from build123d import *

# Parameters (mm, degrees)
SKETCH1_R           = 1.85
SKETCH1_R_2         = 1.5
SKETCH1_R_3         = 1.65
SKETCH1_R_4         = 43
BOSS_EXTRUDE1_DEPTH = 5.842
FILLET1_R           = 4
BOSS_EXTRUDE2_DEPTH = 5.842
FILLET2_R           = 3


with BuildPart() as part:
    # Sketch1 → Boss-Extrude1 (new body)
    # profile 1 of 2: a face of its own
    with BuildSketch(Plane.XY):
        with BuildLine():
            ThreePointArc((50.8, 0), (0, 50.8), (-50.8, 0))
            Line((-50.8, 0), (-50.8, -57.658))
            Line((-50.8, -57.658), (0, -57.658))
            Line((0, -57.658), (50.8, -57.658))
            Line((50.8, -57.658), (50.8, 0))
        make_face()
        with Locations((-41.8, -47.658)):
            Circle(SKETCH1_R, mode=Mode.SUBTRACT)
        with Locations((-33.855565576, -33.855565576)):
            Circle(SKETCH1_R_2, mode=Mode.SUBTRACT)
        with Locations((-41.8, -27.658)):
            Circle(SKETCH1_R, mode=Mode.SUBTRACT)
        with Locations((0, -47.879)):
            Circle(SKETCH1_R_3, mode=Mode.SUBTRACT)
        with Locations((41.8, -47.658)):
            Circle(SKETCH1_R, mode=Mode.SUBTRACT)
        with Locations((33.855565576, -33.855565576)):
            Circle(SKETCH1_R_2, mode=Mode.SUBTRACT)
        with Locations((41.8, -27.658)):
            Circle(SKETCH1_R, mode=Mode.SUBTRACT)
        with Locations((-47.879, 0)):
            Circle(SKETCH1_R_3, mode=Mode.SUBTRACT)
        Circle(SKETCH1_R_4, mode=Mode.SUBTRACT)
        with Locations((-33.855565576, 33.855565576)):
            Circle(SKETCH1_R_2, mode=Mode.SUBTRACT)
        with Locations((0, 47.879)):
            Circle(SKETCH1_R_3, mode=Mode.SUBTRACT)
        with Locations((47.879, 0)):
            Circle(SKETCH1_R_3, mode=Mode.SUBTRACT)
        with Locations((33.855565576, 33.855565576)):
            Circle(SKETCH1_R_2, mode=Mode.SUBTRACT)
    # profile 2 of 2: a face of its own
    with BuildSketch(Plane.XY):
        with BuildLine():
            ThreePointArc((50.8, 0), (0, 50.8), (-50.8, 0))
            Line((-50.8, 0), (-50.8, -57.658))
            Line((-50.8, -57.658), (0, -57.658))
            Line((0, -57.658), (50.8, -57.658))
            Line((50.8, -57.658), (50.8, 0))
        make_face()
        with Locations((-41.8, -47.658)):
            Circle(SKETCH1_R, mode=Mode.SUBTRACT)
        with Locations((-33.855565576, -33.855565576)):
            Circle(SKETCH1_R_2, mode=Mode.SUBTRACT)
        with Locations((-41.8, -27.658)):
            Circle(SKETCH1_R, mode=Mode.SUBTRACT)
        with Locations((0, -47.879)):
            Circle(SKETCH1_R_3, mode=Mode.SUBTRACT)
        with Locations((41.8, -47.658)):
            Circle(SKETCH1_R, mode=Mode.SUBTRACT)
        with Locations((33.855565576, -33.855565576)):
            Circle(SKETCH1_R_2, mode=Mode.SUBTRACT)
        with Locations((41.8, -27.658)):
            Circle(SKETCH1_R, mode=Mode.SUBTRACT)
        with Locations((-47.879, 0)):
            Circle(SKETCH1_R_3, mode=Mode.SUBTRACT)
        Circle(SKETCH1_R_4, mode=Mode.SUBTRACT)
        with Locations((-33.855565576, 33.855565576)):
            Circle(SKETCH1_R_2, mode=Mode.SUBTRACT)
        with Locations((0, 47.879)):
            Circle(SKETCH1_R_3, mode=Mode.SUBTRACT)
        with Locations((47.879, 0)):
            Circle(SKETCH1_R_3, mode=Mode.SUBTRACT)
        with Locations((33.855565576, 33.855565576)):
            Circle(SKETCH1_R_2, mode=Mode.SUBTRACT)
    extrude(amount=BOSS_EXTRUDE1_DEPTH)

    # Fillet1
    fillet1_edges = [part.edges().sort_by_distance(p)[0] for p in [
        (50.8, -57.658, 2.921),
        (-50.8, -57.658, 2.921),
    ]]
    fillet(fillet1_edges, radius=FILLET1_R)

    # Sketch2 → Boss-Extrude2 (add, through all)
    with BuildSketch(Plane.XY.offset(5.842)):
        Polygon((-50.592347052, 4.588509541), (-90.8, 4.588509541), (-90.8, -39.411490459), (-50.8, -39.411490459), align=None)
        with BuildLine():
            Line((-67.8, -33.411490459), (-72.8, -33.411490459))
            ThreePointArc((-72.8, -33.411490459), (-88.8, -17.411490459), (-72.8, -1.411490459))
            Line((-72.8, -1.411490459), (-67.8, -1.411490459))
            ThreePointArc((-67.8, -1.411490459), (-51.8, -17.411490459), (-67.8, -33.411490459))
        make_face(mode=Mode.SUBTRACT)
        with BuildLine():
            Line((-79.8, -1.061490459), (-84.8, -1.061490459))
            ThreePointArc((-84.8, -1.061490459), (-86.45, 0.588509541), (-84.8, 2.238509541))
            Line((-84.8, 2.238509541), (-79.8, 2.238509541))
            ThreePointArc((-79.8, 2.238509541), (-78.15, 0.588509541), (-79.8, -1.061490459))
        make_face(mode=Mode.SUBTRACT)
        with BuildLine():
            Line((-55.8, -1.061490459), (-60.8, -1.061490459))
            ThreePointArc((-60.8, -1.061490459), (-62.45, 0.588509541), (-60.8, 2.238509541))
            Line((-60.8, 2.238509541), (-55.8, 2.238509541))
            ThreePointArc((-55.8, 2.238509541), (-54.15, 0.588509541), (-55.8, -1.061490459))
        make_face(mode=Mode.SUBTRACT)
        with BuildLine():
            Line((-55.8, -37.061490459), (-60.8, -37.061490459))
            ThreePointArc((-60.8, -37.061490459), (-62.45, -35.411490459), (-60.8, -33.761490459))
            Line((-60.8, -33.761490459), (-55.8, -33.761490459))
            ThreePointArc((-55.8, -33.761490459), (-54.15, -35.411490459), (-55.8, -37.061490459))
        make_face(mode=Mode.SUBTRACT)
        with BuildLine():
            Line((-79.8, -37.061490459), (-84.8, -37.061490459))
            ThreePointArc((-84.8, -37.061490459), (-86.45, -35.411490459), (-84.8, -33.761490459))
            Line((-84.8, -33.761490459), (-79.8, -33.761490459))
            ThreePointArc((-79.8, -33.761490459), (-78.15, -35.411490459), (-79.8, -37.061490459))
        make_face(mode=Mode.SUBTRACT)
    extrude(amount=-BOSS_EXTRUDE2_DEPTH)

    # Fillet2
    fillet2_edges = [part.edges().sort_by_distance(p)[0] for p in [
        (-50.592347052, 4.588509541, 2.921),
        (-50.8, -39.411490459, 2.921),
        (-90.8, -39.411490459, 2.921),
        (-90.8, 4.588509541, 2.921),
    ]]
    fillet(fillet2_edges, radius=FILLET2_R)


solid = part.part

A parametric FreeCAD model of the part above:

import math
import FreeCAD as App
import Part
import Sketcher

V = App.Vector


def edges_at(feature, points):
    """Names of the edges that pass closest to the given points."""
    edges = feature.Shape.Edges
    near = lambda p: min(range(len(edges)), key=lambda i: edges[i].distToShape(Part.Vertex(*p))[0])
    return sorted({f"Edge{near(p) + 1}" for p in points})

doc = App.newDocument("Part")
body = doc.addObject("PartDesign::Body", "Body")

# Sketch on XY plane
sketch1 = doc.addObject("Sketcher::SketchObject", "Sketch")
body.addObject(sketch1)
sketch1.AttachmentSupport = (doc.XY_Plane, [""])
sketch1.MapMode = "FlatFace"
sketch1.addGeometry(Part.ArcOfCircle(Part.Circle(V(0, 0, 0), V(0, 0, 1), 50.8), math.radians(0), math.radians(180)), False)
sketch1.addGeometry(Part.LineSegment(V(-50.8, 0, 0), V(-50.8, -57.7, 0)), False)
sketch1.addGeometry(Part.LineSegment(V(-50.8, -57.7, 0), V(50.8, -57.7, 0)), False)
sketch1.addGeometry(Part.LineSegment(V(50.8, -57.7, 0), V(50.8, 0, 0)), False)
sketch1.addGeometry(Part.Circle(V(-41.8, -47.7, 0), V(0, 0, 1), 1.9), False)
sketch1.addGeometry(Part.Circle(V(-41.8, -27.7, 0), V(0, 0, 1), 1.9), False)
sketch1.addGeometry(Part.Circle(V(-33.9, -33.9, 0), V(0, 0, 1), 1.5), False)
sketch1.addGeometry(Part.Circle(V(0, -47.9, 0), V(0, 0, 1), 1.6), False)
sketch1.addGeometry(Part.Circle(V(41.8, -47.7, 0), V(0, 0, 1), 1.9), False)
sketch1.addGeometry(Part.Circle(V(33.9, -33.9, 0), V(0, 0, 1), 1.5), False)
sketch1.addGeometry(Part.Circle(V(41.8, -27.7, 0), V(0, 0, 1), 1.9), False)
sketch1.addGeometry(Part.Circle(V(0, 0, 0), V(0, 0, 1), 43), False)
sketch1.addGeometry(Part.Circle(V(-47.9, 0, 0), V(0, 0, 1), 1.6), False)
sketch1.addGeometry(Part.Circle(V(-33.9, 33.9, 0), V(0, 0, 1), 1.5), False)
sketch1.addGeometry(Part.Circle(V(47.9, 0, 0), V(0, 0, 1), 1.6), False)
sketch1.addGeometry(Part.Circle(V(0, 47.9, 0), V(0, 0, 1), 1.6), False)
sketch1.addGeometry(Part.Circle(V(33.9, 33.9, 0), V(0, 0, 1), 1.5), False)
sketch1.addConstraint(Sketcher.Constraint("Tangent", 0, 2, 1, 1))
sketch1.addConstraint(Sketcher.Constraint("Coincident", 1, 2, 2, 1))
sketch1.addConstraint(Sketcher.Constraint("Coincident", 2, 2, 3, 1))
sketch1.addConstraint(Sketcher.Constraint("Tangent", 3, 2, 0, 1))
sketch1.addConstraint(Sketcher.Constraint("Vertical", 1))
sketch1.addConstraint(Sketcher.Constraint("Horizontal", 2))
sketch1.addConstraint(Sketcher.Constraint("Vertical", 3))
sketch1.addConstraint(Sketcher.Constraint("Coincident", 0, 3, -1, 1))
sketch1.addConstraint(Sketcher.Constraint("Coincident", 11, 3, -1, 1))
sketch1.addConstraint(Sketcher.Constraint("Equal", 4, 5))
sketch1.addConstraint(Sketcher.Constraint("Equal", 5, 8))
sketch1.addConstraint(Sketcher.Constraint("Equal", 6, 9))
sketch1.addConstraint(Sketcher.Constraint("Equal", 8, 10))
sketch1.addConstraint(Sketcher.Constraint("Equal", 7, 12))
sketch1.addConstraint(Sketcher.Constraint("Equal", 9, 13))
sketch1.addConstraint(Sketcher.Constraint("Equal", 12, 14))
sketch1.addConstraint(Sketcher.Constraint("Equal", 14, 15))
sketch1.addConstraint(Sketcher.Constraint("Equal", 13, 16))
sketch1.addConstraint(Sketcher.Constraint("Symmetric", 9, 3, 13, 3, -1, 1))
sketch1.addConstraint(Sketcher.Constraint("Symmetric", 12, 3, 14, 3, -1, 1))
sketch1.addConstraint(Sketcher.Constraint("Symmetric", 7, 3, 15, 3, -1, 1))
sketch1.addConstraint(Sketcher.Constraint("Symmetric", 6, 3, 16, 3, -1, 1))
sketch1.addConstraint(Sketcher.Constraint("Symmetric", 4, 3, 8, 3, -2))
sketch1.addConstraint(Sketcher.Constraint("Symmetric", 6, 3, 9, 3, -2))
sketch1.addConstraint(Sketcher.Constraint("Symmetric", 5, 3, 10, 3, -2))
sketch1.addConstraint(Sketcher.Constraint("PointOnObject", 7, 3, -2))
sketch1.addConstraint(Sketcher.Constraint("PointOnObject", 12, 3, -1))
sketch1.addConstraint(Sketcher.Constraint("Vertical", 4, 3, 5, 3))
sketch1.addConstraint(Sketcher.Constraint("Diameter", 6, 3.0))
sketch1.addConstraint(Sketcher.Constraint("Diameter", 11, 86.0))
sketch1.addConstraint(Sketcher.Constraint("Diameter", 4, 3.7))
sketch1.addConstraint(Sketcher.Constraint("Diameter", 7, 3.3))
sketch1.addConstraint(Sketcher.Constraint("Radius", 0, 50.8))
sketch1.addConstraint(Sketcher.Constraint("DistanceY", 4, 3, 5, 3, 20.0))
sketch1.addConstraint(Sketcher.Constraint("DistanceX", 0, 2, 5, 3, 9.0))
sketch1.addConstraint(Sketcher.Constraint("DistanceY", 1, 2, 4, 3, 10.0))
sketch1.addConstraint(Sketcher.Constraint("DistanceY", 1, 2, 1, 1, 57.658))
sketch1.addConstraint(Sketcher.Constraint("DistanceY", 7, 3, -1, 1, 47.879))
sketch1.addConstraint(Sketcher.Constraint("DistanceX", 12, 3, -1, 1, 47.879))
sketch1.addConstraint(Sketcher.Constraint("DistanceX", 6, 3, 9, 3, 67.711131))
sketch1.addConstraint(Sketcher.Constraint("DistanceY", 6, 3, 13, 3, 67.711131))
pad1 = doc.addObject("PartDesign::Pad", "Pad")
body.addObject(pad1)
pad1.Profile = sketch1
pad1.Length = 5.842
doc.recompute()

fillet = doc.addObject("PartDesign::Fillet", "Fillet")
body.addObject(fillet)
fillet.Base = (pad1, edges_at(pad1, [(50.8, -57.658, 2.921), (-50.8, -57.658, 2.921)]))
fillet.Radius = 4

# Sketch on XY plane
sketch2 = doc.addObject("Sketcher::SketchObject", "Sketch001")
body.addObject(sketch2)
sketch2.AttachmentSupport = (doc.XY_Plane, [""])
sketch2.MapMode = "FlatFace"
sketch2.AttachmentOffset = App.Placement(V(0, 0, 5.842), App.Rotation())
sketch2.addGeometry(Part.LineSegment(V(-50.6, 4.6, 0), V(-90.8, 4.6, 0)), False)
sketch2.addGeometry(Part.LineSegment(V(-90.8, 4.6, 0), V(-90.8, -39.4, 0)), False)
sketch2.addGeometry(Part.LineSegment(V(-90.8, -39.4, 0), V(-50.8, -39.4, 0)), False)
sketch2.addGeometry(Part.LineSegment(V(-50.8, -39.4, 0), V(-50.6, 4.6, 0)), False)
sketch2.addGeometry(Part.ArcOfCircle(Part.Circle(V(-79.8, -35.4, 0), V(0, 0, 1), 1.6), math.radians(-90), math.radians(90)), False)
sketch2.addGeometry(Part.LineSegment(V(-79.8, -37.1, 0), V(-84.8, -37.1, 0)), False)
sketch2.addGeometry(Part.ArcOfCircle(Part.Circle(V(-84.8, -35.4, 0), V(0, 0, 1), 1.6), math.radians(90), math.radians(270)), False)
sketch2.addGeometry(Part.LineSegment(V(-84.8, -33.8, 0), V(-79.8, -33.8, 0)), False)
sketch2.addGeometry(Part.ArcOfCircle(Part.Circle(V(-55.8, -35.4, 0), V(0, 0, 1), 1.6), math.radians(-90), math.radians(90)), False)
sketch2.addGeometry(Part.LineSegment(V(-55.8, -37.1, 0), V(-60.8, -37.1, 0)), False)
sketch2.addGeometry(Part.ArcOfCircle(Part.Circle(V(-60.8, -35.4, 0), V(0, 0, 1), 1.6), math.radians(90), math.radians(270)), False)
sketch2.addGeometry(Part.LineSegment(V(-60.8, -33.8, 0), V(-55.8, -33.8, 0)), False)
sketch2.addGeometry(Part.ArcOfCircle(Part.Circle(V(-79.8, 0.6, 0), V(0, 0, 1), 1.6), math.radians(-90), math.radians(90)), False)
sketch2.addGeometry(Part.LineSegment(V(-79.8, -1.1, 0), V(-84.8, -1.1, 0)), False)
sketch2.addGeometry(Part.ArcOfCircle(Part.Circle(V(-84.8, 0.6, 0), V(0, 0, 1), 1.6), math.radians(90), math.radians(270)), False)
sketch2.addGeometry(Part.LineSegment(V(-84.8, 2.2, 0), V(-79.8, 2.2, 0)), False)
sketch2.addGeometry(Part.ArcOfCircle(Part.Circle(V(-67.8, -17.4, 0), V(0, 0, 1), 16), math.radians(-90), math.radians(90)), False)
sketch2.addGeometry(Part.LineSegment(V(-67.8, -33.4, 0), V(-72.8, -33.4, 0)), False)
sketch2.addGeometry(Part.ArcOfCircle(Part.Circle(V(-72.8, -17.4, 0), V(0, 0, 1), 16), math.radians(90), math.radians(270)), False)
sketch2.addGeometry(Part.LineSegment(V(-72.8, -1.4, 0), V(-67.8, -1.4, 0)), False)
sketch2.addGeometry(Part.ArcOfCircle(Part.Circle(V(-55.8, 0.6, 0), V(0, 0, 1), 1.6), math.radians(-90), math.radians(90)), False)
sketch2.addGeometry(Part.LineSegment(V(-55.8, -1.1, 0), V(-60.8, -1.1, 0)), False)
sketch2.addGeometry(Part.ArcOfCircle(Part.Circle(V(-60.8, 0.6, 0), V(0, 0, 1), 1.6), math.radians(90), math.radians(270)), False)
sketch2.addGeometry(Part.LineSegment(V(-60.8, 2.2, 0), V(-55.8, 2.2, 0)), False)
sketch2.addConstraint(Sketcher.Constraint("Coincident", 0, 2, 1, 1))
sketch2.addConstraint(Sketcher.Constraint("Coincident", 1, 2, 2, 1))
sketch2.addConstraint(Sketcher.Constraint("Coincident", 2, 2, 3, 1))
sketch2.addConstraint(Sketcher.Constraint("Coincident", 3, 2, 0, 1))
sketch2.addConstraint(Sketcher.Constraint("Tangent", 4, 1, 5, 1))
sketch2.addConstraint(Sketcher.Constraint("Tangent", 5, 2, 6, 2))
sketch2.addConstraint(Sketcher.Constraint("Tangent", 6, 1, 7, 1))
sketch2.addConstraint(Sketcher.Constraint("Tangent", 7, 2, 4, 2))
sketch2.addConstraint(Sketcher.Constraint("Tangent", 8, 1, 9, 1))
sketch2.addConstraint(Sketcher.Constraint("Tangent", 9, 2, 10, 2))
sketch2.addConstraint(Sketcher.Constraint("Tangent", 10, 1, 11, 1))
sketch2.addConstraint(Sketcher.Constraint("Tangent", 11, 2, 8, 2))
sketch2.addConstraint(Sketcher.Constraint("Tangent", 12, 1, 13, 1))
sketch2.addConstraint(Sketcher.Constraint("Tangent", 13, 2, 14, 2))
sketch2.addConstraint(Sketcher.Constraint("Tangent", 14, 1, 15, 1))
sketch2.addConstraint(Sketcher.Constraint("Tangent", 15, 2, 12, 2))
sketch2.addConstraint(Sketcher.Constraint("Tangent", 16, 1, 17, 1))
sketch2.addConstraint(Sketcher.Constraint("Tangent", 17, 2, 18, 2))
sketch2.addConstraint(Sketcher.Constraint("Tangent", 18, 1, 19, 1))
sketch2.addConstraint(Sketcher.Constraint("Tangent", 19, 2, 16, 2))
sketch2.addConstraint(Sketcher.Constraint("Tangent", 20, 1, 21, 1))
sketch2.addConstraint(Sketcher.Constraint("Tangent", 21, 2, 22, 2))
sketch2.addConstraint(Sketcher.Constraint("Tangent", 22, 1, 23, 1))
sketch2.addConstraint(Sketcher.Constraint("Tangent", 23, 2, 20, 2))
sketch2.addConstraint(Sketcher.Constraint("Horizontal", 0))
sketch2.addConstraint(Sketcher.Constraint("Vertical", 1))
sketch2.addConstraint(Sketcher.Constraint("Horizontal", 2))
sketch2.addConstraint(Sketcher.Constraint("Horizontal", 5))
sketch2.addConstraint(Sketcher.Constraint("Horizontal", 7))
sketch2.addConstraint(Sketcher.Constraint("Horizontal", 9))
sketch2.addConstraint(Sketcher.Constraint("Horizontal", 11))
sketch2.addConstraint(Sketcher.Constraint("Horizontal", 13))
sketch2.addConstraint(Sketcher.Constraint("Horizontal", 15))
sketch2.addConstraint(Sketcher.Constraint("Horizontal", 17))
sketch2.addConstraint(Sketcher.Constraint("Horizontal", 19))
sketch2.addConstraint(Sketcher.Constraint("Horizontal", 21))
sketch2.addConstraint(Sketcher.Constraint("Horizontal", 23))
sketch2.addConstraint(Sketcher.Constraint("Equal", 6, 8))
sketch2.addConstraint(Sketcher.Constraint("Equal", 10, 12))
sketch2.addConstraint(Sketcher.Constraint("Equal", 14, 20))
sketch2.addConstraint(Sketcher.Constraint("Horizontal", 6, 3, 8, 3))
sketch2.addConstraint(Sketcher.Constraint("Horizontal", 14, 3, 20, 3))
sketch2.addConstraint(Sketcher.Constraint("Vertical", 4, 3, 12, 3))
sketch2.addConstraint(Sketcher.Constraint("Vertical", 6, 3, 14, 3))
sketch2.addConstraint(Sketcher.Constraint("Vertical", 8, 3, 20, 3))
sketch2.addConstraint(Sketcher.Constraint("Vertical", 10, 3, 22, 3))
sketch2.addConstraint(Sketcher.Constraint("Equal", 7, 9))
sketch2.addConstraint(Sketcher.Constraint("Equal", 15, 17))
sketch2.addConstraint(Sketcher.Constraint("Radius", 16, 16.0))
sketch2.addConstraint(Sketcher.Constraint("DistanceX", 2, 1, 2, 2, 40.0))
sketch2.addConstraint(Sketcher.Constraint("DistanceX", 5, 2, 5, 1, 5.0))
sketch2.addConstraint(Sketcher.Constraint("DistanceY", 1, 2, 1, 1, 44.0))
sketch2.addConstraint(Sketcher.Constraint("Radius", 4, 1.65))
sketch2.addConstraint(Sketcher.Constraint("DistanceX", 4, 3, 8, 3, 24.0))
sketch2.addConstraint(Sketcher.Constraint("DistanceY", 4, 3, 12, 3, 36.0))
sketch2.addConstraint(Sketcher.Constraint("DistanceX", 16, 3, 10, 3, 7.0))
sketch2.addConstraint(Sketcher.Constraint("DistanceY", 10, 3, 16, 3, 18.0))
sketch2.addConstraint(Sketcher.Constraint("DistanceX", 0, 2, 14, 3, 6.0))
sketch2.addConstraint(Sketcher.Constraint("DistanceY", 14, 3, 0, 2, 4.0))
sketch2.addConstraint(Sketcher.Constraint("DistanceX", 4, 3, -1, 1, 79.8))
sketch2.addConstraint(Sketcher.Constraint("Distance", 3, 44.00049))
sketch2.addConstraint(Sketcher.Constraint("DistanceY", 4, 3, -1, 1, 35.41149))
pad2 = doc.addObject("PartDesign::Pad", "Pad001")
body.addObject(pad2)
pad2.Profile = sketch2
pad2.Length = 5.842
pad2.Reversed = True
doc.recompute()

fillet2 = doc.addObject("PartDesign::Fillet", "Fillet001")
body.addObject(fillet2)
fillet2.Base = (pad2, edges_at(pad2, [
    (-50.592, 4.589, 2.921),
    (-50.8, -39.411, 2.921),
    (-90.8, -39.411, 2.921),
    (-90.8, 4.589, 2.921),
]))
fillet2.Radius = 3

doc.recompute()
